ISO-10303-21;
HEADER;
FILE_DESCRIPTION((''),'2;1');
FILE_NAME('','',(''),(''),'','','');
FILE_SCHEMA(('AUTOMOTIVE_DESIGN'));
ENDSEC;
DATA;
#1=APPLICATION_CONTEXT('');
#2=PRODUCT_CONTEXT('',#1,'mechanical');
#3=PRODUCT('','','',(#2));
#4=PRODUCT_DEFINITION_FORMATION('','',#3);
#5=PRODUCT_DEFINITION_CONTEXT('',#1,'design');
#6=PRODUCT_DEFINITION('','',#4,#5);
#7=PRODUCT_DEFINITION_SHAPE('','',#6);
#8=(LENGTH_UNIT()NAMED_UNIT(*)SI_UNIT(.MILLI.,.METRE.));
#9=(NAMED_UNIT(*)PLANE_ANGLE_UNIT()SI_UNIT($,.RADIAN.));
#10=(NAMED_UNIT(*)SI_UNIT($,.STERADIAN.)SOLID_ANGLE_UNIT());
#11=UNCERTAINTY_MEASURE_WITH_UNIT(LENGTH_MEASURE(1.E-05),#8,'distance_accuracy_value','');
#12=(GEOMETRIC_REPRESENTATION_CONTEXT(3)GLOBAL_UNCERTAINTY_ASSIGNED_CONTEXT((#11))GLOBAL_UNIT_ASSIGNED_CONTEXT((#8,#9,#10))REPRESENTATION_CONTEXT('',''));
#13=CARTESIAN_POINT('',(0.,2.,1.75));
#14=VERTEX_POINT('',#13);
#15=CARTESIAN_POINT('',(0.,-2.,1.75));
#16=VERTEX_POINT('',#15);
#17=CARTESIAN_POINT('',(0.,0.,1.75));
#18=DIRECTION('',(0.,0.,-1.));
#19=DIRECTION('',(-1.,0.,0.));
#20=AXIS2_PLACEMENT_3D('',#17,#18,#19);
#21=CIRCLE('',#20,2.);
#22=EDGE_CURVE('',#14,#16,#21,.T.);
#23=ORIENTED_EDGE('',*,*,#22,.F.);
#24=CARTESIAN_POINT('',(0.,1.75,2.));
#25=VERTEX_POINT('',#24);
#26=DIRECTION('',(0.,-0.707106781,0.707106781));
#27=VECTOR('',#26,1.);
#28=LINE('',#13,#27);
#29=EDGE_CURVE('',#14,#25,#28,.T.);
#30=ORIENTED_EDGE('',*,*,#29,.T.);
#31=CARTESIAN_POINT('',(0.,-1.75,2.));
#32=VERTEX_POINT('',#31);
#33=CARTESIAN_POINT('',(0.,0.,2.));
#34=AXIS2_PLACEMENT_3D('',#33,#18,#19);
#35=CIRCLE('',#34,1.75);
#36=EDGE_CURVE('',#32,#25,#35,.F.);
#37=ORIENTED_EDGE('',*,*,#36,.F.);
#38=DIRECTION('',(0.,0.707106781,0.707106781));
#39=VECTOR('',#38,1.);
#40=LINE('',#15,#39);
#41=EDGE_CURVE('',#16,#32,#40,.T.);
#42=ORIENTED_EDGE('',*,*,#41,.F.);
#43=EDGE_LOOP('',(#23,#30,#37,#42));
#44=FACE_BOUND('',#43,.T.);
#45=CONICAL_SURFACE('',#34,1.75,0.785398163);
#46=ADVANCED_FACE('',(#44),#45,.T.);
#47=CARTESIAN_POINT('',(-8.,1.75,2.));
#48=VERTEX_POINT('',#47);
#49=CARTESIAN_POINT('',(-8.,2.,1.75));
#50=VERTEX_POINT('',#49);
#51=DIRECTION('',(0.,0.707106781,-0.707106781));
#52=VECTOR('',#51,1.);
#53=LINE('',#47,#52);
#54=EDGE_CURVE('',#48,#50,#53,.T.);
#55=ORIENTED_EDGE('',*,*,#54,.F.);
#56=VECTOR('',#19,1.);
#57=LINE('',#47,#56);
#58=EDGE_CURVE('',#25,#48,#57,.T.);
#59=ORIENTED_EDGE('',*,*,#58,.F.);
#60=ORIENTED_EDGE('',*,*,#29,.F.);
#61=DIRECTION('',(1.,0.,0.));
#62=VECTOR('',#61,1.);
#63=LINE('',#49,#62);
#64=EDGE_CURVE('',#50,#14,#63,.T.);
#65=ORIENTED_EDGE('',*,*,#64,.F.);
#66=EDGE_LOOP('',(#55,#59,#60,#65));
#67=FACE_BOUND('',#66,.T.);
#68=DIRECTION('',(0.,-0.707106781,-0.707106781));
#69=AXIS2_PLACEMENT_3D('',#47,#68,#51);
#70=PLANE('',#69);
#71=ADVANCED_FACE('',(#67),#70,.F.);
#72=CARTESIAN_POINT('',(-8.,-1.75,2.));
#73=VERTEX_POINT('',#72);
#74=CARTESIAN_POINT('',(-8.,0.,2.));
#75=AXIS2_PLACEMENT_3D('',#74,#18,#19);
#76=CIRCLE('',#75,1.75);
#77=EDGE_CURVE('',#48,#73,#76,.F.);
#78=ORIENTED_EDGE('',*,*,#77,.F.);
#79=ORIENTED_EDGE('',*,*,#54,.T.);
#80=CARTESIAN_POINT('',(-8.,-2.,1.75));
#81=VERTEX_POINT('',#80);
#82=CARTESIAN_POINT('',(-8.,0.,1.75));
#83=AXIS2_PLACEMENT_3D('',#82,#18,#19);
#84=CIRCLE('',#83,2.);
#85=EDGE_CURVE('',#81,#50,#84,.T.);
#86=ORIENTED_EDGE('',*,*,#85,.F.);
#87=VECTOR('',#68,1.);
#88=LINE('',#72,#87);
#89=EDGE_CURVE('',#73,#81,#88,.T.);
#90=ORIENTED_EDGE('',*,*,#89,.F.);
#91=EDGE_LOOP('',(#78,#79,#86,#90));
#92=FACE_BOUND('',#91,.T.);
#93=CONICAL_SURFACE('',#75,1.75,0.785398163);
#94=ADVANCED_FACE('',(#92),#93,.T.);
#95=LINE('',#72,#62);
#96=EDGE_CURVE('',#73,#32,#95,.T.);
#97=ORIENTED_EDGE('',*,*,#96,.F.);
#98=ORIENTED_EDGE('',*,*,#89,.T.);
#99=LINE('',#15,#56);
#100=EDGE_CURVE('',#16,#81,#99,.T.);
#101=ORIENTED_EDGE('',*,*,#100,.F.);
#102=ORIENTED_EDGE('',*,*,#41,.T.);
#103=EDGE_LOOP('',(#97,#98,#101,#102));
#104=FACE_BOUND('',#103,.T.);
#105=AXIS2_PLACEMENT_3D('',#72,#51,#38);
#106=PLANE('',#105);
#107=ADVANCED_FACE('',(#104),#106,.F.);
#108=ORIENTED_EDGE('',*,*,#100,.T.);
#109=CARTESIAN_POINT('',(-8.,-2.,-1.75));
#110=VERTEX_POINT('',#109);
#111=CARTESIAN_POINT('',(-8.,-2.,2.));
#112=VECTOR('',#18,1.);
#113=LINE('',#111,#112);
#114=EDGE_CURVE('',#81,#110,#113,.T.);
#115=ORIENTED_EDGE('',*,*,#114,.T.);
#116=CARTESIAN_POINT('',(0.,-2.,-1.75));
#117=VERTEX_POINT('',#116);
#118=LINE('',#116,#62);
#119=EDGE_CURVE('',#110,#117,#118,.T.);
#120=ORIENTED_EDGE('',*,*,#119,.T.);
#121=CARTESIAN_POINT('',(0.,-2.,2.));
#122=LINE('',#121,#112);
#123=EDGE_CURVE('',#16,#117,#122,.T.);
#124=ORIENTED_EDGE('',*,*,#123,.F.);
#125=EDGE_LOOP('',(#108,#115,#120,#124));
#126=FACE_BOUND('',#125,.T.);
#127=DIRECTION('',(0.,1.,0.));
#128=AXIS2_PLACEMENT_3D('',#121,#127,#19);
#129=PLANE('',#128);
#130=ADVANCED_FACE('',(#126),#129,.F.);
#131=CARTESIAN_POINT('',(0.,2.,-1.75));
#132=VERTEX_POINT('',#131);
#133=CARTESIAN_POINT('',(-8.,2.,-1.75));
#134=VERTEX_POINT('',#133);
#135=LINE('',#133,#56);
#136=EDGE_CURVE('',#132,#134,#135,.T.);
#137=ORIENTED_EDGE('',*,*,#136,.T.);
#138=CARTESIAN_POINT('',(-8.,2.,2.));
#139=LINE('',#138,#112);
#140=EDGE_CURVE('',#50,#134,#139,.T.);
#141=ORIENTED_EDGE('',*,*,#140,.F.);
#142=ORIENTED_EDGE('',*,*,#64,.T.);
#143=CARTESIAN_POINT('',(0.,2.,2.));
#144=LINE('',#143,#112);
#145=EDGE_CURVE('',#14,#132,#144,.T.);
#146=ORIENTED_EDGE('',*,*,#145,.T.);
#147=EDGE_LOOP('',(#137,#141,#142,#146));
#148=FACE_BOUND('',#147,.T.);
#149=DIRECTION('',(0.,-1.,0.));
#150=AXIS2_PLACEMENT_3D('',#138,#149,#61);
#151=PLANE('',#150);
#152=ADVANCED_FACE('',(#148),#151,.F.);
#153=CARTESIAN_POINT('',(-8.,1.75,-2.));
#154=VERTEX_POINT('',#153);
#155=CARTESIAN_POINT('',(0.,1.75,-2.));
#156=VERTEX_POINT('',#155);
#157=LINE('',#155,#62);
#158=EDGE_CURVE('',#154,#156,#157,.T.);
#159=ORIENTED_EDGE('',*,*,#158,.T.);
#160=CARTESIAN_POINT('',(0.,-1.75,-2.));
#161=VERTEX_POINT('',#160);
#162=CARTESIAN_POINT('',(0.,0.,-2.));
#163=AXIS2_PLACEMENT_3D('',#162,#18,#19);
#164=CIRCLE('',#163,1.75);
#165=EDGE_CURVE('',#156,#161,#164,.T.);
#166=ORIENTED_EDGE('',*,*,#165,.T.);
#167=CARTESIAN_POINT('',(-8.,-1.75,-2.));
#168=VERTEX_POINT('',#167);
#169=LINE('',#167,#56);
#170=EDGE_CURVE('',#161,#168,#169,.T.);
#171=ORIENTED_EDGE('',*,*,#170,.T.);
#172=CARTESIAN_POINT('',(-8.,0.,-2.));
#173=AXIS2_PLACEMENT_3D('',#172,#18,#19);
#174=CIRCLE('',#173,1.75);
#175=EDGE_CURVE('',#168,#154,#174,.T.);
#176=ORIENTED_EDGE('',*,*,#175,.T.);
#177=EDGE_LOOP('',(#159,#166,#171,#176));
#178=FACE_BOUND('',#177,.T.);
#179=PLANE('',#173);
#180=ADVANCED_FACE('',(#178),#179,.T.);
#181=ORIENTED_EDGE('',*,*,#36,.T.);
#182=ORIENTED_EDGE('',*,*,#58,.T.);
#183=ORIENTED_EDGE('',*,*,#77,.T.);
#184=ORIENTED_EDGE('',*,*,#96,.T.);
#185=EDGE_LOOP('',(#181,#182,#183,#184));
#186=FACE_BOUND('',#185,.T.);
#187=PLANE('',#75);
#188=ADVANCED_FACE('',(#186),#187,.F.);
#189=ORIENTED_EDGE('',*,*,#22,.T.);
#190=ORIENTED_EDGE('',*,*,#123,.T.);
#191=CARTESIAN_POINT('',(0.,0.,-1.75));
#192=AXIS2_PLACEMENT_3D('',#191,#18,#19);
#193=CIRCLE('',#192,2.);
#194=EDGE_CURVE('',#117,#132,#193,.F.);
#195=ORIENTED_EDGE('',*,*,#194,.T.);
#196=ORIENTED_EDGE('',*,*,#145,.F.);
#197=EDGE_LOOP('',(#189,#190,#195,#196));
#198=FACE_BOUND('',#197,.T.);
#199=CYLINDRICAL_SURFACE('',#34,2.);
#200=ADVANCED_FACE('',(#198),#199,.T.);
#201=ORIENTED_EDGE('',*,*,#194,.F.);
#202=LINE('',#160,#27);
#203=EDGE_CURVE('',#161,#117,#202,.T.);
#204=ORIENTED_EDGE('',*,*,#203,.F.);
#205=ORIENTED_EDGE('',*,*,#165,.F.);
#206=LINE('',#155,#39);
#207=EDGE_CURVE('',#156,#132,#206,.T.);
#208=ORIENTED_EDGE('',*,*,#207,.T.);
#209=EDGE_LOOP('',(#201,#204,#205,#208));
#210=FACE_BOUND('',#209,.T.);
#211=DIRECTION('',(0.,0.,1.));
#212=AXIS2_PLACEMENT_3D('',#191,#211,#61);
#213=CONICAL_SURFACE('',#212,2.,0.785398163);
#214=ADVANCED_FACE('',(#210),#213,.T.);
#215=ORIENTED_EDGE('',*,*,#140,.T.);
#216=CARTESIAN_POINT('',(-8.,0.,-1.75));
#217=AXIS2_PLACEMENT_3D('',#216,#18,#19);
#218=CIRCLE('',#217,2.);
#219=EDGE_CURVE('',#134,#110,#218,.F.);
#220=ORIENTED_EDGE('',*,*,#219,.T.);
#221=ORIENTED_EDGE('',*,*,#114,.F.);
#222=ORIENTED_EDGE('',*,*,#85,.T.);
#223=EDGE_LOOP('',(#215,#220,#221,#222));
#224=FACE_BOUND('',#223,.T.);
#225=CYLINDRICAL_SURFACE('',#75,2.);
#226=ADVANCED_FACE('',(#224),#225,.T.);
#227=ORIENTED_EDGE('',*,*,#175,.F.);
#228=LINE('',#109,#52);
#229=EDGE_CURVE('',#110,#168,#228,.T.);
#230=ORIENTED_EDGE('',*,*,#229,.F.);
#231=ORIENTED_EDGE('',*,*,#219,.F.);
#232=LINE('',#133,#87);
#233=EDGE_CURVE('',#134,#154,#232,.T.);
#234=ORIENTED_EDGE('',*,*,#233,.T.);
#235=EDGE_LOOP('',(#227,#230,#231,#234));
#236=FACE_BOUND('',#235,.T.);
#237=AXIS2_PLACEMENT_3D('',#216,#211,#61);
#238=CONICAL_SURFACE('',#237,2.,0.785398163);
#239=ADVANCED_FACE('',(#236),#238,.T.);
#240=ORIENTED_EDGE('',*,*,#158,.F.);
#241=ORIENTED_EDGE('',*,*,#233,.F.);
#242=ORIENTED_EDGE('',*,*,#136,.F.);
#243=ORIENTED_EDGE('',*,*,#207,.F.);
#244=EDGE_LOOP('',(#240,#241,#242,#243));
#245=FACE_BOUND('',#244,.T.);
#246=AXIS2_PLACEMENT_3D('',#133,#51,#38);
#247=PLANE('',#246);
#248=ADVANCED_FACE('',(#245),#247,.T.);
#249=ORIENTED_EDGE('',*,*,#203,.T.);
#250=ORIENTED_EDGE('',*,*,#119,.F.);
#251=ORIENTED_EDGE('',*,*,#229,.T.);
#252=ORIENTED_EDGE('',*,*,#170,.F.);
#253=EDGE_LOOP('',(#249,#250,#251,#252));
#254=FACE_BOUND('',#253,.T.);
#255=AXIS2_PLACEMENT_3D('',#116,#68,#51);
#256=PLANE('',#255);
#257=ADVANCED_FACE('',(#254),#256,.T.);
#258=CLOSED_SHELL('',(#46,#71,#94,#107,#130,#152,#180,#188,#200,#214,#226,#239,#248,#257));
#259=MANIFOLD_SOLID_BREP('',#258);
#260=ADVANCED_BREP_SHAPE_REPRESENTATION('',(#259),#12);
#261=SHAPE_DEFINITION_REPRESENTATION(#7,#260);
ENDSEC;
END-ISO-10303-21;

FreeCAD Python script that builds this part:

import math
import FreeCAD as App
import Part
import Sketcher


def edges_at(feature, points):
    """Names of the edges that pass closest to the given points."""
    edges = feature.Shape.Edges
    near = lambda p: min(range(len(edges)), key=lambda i: edges[i].distToShape(Part.Vertex(*p))[0])
    return sorted({f"Edge{near(p) + 1}" for p in points})

doc = App.newDocument("Part")
body = doc.addObject("PartDesign::Body", "Body")

# Sketch on XY plane
sketch1 = body.newObject("Sketcher::SketchObject", "Sketch")
sketch1.AttachmentSupport = (doc.getObject("XY_Plane"), [""])
sketch1.MapMode = "FlatFace"
sketch1.addGeometry([
    Part.LineSegment(App.Vector(0, 2, 0), App.Vector(-8, 2, 0)),
    Part.ArcOfCircle(Part.Circle(App.Vector(-8, 0, 0), App.Vector(0, 0, 1), 2), math.radians(90), math.radians(270)),
    Part.LineSegment(App.Vector(-8, -2, 0), App.Vector(0, -2, 0)),
    Part.ArcOfCircle(Part.Circle(App.Vector(0, 0, 0), App.Vector(0, 0, 1), 2), math.radians(-90), math.radians(90)),
], False)
sketch1.addConstraint([
    Sketcher.Constraint("Tangent", 0, 2, 1, 1),
    Sketcher.Constraint("Tangent", 1, 2, 2, 1),
    Sketcher.Constraint("Tangent", 2, 2, 3, 1),
    Sketcher.Constraint("Tangent", 3, 2, 0, 1),
    Sketcher.Constraint("Horizontal", 0),
    Sketcher.Constraint("Horizontal", 2),
    Sketcher.Constraint("Coincident", 3, 3, -1, 1),
    Sketcher.Constraint("Radius", 1, 2.0),
    Sketcher.Constraint("DistanceX", 0, 2, 0, 1, 8.0),
])
pad1 = body.newObject("PartDesign::Pad", "Pad")
pad1.Profile = sketch1
pad1.Length = 4
pad1.Midplane = True
doc.recompute()

chamfer = body.newObject("PartDesign::Chamfer", "Chamfer")
chamfer.Base = (pad1, edges_at(pad1, [
    (2, 0, 2),
    (-4, 2, 2),
    (-10, 0, 2),
    (-4, 2, -2),
    (2, 0, -2),
    (-4, -2, -2),
    (-10, 0, -2),
    (-4, -2, 2),
]))
chamfer.Size = 0.25

doc.recompute()
